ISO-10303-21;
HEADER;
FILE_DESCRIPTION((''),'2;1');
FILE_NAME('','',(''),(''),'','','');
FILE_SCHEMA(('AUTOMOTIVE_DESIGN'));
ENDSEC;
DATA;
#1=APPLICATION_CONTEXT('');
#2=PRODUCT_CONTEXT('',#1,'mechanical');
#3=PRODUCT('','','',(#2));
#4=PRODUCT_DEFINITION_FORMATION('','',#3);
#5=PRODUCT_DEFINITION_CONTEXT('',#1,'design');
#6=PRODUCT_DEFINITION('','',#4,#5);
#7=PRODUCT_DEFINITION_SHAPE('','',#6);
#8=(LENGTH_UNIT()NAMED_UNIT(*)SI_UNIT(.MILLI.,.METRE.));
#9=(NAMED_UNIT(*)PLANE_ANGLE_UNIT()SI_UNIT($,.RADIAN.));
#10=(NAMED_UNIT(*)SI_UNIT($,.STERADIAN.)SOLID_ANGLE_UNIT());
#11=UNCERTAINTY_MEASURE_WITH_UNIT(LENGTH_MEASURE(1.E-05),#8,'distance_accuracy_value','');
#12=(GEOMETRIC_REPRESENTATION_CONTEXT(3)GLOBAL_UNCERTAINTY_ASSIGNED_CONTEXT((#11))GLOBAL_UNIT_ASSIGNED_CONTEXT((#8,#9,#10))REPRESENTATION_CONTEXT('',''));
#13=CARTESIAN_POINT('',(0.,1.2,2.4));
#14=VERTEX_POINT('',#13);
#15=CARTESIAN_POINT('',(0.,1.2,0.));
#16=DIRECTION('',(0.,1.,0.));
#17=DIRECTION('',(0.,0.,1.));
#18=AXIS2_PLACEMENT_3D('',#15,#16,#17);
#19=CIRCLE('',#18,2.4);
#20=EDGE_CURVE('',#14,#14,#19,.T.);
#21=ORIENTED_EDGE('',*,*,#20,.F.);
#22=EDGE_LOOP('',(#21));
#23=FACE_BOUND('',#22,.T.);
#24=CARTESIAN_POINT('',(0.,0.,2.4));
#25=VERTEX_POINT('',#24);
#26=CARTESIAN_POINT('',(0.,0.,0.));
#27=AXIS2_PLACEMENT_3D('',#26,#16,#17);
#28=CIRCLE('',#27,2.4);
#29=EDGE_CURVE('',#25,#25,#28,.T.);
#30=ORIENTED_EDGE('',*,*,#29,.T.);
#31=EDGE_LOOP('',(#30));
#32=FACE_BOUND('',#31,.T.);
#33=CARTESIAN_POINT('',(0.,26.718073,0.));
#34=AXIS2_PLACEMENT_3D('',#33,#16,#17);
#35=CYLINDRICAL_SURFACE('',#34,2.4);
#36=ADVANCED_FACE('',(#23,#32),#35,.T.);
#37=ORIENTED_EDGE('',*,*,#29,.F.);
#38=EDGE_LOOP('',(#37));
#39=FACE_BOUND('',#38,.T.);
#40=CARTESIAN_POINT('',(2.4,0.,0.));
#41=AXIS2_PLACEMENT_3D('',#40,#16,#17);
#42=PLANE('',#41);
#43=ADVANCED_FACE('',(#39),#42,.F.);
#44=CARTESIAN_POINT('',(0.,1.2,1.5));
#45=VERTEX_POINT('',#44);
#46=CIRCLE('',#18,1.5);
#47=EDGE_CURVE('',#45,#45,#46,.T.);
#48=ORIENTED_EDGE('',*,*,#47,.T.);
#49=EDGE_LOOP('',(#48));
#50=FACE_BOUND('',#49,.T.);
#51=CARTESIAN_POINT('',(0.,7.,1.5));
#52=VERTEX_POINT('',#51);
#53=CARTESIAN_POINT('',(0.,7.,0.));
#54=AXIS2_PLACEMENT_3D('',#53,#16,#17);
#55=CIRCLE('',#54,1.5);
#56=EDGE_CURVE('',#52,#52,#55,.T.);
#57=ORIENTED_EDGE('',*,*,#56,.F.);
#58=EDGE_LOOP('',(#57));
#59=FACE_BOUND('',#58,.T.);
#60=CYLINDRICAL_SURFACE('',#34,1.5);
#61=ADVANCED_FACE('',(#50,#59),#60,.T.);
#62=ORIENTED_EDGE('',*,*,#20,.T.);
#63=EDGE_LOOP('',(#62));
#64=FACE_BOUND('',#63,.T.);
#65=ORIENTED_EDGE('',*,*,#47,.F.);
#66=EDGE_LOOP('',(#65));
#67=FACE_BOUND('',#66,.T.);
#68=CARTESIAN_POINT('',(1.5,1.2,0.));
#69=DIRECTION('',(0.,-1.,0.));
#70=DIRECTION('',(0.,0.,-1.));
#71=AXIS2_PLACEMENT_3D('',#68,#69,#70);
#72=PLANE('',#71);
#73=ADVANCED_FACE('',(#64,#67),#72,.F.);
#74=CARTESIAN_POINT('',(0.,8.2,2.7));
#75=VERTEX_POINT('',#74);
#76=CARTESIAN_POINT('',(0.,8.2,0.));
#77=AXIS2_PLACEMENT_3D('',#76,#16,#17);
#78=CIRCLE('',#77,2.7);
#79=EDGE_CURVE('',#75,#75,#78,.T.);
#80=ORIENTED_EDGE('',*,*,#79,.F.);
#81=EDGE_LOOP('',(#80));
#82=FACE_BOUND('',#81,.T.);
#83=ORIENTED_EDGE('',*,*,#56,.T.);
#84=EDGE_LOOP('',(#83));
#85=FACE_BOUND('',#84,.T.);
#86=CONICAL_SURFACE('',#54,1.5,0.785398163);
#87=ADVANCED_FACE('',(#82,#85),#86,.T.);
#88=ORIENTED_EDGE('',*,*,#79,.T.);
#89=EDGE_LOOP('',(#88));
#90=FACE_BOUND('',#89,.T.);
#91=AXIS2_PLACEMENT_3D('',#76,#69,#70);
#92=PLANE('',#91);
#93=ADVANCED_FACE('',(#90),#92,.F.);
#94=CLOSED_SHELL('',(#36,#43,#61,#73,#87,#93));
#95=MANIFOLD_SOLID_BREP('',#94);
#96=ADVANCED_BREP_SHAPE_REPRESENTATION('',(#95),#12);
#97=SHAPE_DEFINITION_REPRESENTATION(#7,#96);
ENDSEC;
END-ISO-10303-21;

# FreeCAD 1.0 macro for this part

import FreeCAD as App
import Part
import Sketcher
Q = App.Units.Quantity


def add_polygon(sketch, points):
    """Adds a closed chain of lines whose ends are joined by coincident constraints."""
    first, n = sketch.GeometryCount, len(points)
    for a, b in zip(points, points[1:] + points[:1]):
        sketch.addGeometry(Part.LineSegment(App.Vector(*a, 0), App.Vector(*b, 0)), False)
    for i in range(n):
        sketch.addConstraint(Sketcher.Constraint("Coincident", first + i, 2, first + (i + 1) % n, 1))

doc = App.newDocument("Part")
body = doc.addObject("PartDesign::Body", "Body")

sketch1 = body.newObject("Sketcher::SketchObject", "Sketch")
sketch1.AttachmentSupport = (doc.getObject("XY_Plane"), [""])
sketch1.MapMode = "FlatFace"
add_polygon(sketch1, [(2.7, 8.2), (0, 8.2), (0, 0), (2.4, 0), (2.4, 1.2), (1.5, 1.2), (1.5, 7)])
sketch1.addConstraint(Sketcher.Constraint("Horizontal", 0))
sketch1.addConstraint(Sketcher.Constraint("Vertical", 1))
sketch1.addConstraint(Sketcher.Constraint("Horizontal", 2))
sketch1.addConstraint(Sketcher.Constraint("Vertical", 3))
sketch1.addConstraint(Sketcher.Constraint("Horizontal", 4))
sketch1.addConstraint(Sketcher.Constraint("Vertical", 5))
sketch1.addConstraint(Sketcher.Constraint("Coincident", 1, 2, -1, 1))
sketch1.addConstraint(Sketcher.Constraint("Angle", 6, Q("45 deg")))
sketch1.addConstraint(Sketcher.Constraint("DistanceX", 0, 2, 0, 1, 2.7))
sketch1.addConstraint(Sketcher.Constraint("DistanceX", 2, 1, 2, 2, 2.4))
sketch1.addConstraint(Sketcher.Constraint("DistanceX", 4, 2, 4, 1, 0.9))
sketch1.addConstraint(Sketcher.Constraint("DistanceY", 1, 2, 1, 1, 8.2))
sketch1.addConstraint(Sketcher.Constraint("DistanceY", 3, 1, 3, 2, 1.2))
revolution = body.newObject("PartDesign::Revolution", "Revolution")
revolution.Profile = sketch1
revolution.ReferenceAxis = (sketch1, ["V_Axis"])
revolution.Angle = 360

doc.recompute()
